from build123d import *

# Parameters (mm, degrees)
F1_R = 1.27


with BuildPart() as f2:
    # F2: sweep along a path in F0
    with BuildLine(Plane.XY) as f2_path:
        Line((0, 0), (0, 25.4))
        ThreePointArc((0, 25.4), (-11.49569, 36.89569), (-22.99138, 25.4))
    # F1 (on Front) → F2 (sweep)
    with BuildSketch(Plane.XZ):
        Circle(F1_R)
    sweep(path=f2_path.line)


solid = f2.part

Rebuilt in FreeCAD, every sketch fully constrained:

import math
import FreeCAD as App
import Part
import Sketcher
from FreeCAD import Vector
Q = App.Units.Quantity

doc = App.newDocument("Part")
body = doc.addObject("PartDesign::Body", "Body")

sketch1 = body.newObject("Sketcher::SketchObject", "Sketch")
sketch1.AttachmentSupport = (doc.getObject("XZ_Plane"), [""])
sketch1.MapMode = "FlatFace"
sketch1.addGeometry(Part.Circle(Vector(0, 0, 0), Vector(0, 0, 1), 1.3), False)
sketch1.addConstraint(Sketcher.Constraint("Coincident", 0, 3, -1, 1))
sketch1.addConstraint(Sketcher.Constraint("Diameter", 0, Q("0.1 in")))

sketch2 = body.newObject("Sketcher::SketchObject", "Sketch001")
sketch2.AttachmentSupport = (doc.getObject("XY_Plane"), [""])
sketch2.MapMode = "FlatFace"
sketch2.addGeometry(Part.LineSegment(Vector(0, 0, 0), Vector(0, 25, 0)), False)
sketch2.addGeometry(Part.ArcOfCircle(Part.Circle(Vector(-11, 25, 0), Vector(0, 0, 1), 11), math.radians(0), math.radians(180)), False)
sketch2.addConstraint(Sketcher.Constraint("Tangent", 0, 2, 1, 1))
sketch2.addConstraint(Sketcher.Constraint("Vertical", 0))
sketch2.addConstraint(Sketcher.Constraint("Coincident", 0, 1, -1, 1))
sketch2.addConstraint(Sketcher.Constraint("Horizontal", 0, 2, 1, 2))
sketch2.addConstraint(Sketcher.Constraint("DistanceY", 0, 1, 0, 2, Q("1 in")))
sketch2.addConstraint(Sketcher.Constraint("Radius", 1, Q("11.49569 mm")))
doc.recompute()

additivepipe = body.newObject("PartDesign::AdditivePipe", "AdditivePipe")
additivepipe.Profile = sketch1
additivepipe.Spine = (sketch2, ["Edge1", "Edge2"])

doc.recompute()
